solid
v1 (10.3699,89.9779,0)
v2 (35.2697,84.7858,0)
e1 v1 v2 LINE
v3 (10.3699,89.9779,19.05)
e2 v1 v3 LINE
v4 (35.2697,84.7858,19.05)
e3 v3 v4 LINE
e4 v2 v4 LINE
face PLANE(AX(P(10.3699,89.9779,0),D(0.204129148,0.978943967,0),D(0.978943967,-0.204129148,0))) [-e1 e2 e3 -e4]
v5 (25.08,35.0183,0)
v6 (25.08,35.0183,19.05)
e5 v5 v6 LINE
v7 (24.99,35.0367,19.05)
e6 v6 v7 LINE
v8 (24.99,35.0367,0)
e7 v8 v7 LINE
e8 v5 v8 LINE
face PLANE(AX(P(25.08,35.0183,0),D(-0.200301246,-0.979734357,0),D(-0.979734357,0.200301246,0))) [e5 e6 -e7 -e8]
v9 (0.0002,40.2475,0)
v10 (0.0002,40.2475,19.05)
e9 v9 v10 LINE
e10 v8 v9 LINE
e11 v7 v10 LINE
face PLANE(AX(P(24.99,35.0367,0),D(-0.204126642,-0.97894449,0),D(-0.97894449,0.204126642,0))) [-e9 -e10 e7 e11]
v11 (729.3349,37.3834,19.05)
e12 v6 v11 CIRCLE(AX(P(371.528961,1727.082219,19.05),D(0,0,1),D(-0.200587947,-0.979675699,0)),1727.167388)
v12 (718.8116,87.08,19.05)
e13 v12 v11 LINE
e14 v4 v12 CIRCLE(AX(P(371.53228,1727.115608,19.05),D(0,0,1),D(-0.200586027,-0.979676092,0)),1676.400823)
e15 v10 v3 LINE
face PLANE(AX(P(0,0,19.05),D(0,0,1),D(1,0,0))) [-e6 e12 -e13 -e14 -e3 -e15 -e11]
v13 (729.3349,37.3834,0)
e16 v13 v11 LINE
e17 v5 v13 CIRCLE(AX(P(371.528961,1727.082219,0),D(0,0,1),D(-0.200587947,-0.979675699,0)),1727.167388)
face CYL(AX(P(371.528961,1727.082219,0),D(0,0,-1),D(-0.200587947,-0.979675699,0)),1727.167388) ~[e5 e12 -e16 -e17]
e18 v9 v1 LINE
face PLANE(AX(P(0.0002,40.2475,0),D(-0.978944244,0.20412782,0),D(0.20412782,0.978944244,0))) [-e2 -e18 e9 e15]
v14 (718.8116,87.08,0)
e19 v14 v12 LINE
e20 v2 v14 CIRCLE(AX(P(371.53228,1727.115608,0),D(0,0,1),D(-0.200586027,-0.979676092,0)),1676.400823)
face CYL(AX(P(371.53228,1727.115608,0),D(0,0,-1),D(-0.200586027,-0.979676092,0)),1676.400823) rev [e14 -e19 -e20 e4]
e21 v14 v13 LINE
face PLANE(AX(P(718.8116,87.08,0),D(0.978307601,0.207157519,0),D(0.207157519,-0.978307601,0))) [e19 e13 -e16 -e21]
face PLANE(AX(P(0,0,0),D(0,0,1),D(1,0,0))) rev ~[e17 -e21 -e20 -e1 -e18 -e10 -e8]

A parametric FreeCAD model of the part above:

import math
import FreeCAD as App
import Part
import Sketcher
from FreeCAD import Vector
Q = App.Units.Quantity

doc = App.newDocument("Part")
body = doc.addObject("PartDesign::Body", "Body")

# Sketch on XY plane
sketch1 = doc.addObject("Sketcher::SketchObject", "Sketch")
body.addObject(sketch1)
sketch1.AttachmentSupport = (doc.XY_Plane, [""])
sketch1.MapMode = "FlatFace"
sketch1.addGeometry([
    Part.LineSegment(Vector(35.27, 84.79, 0), Vector(10.37, 89.98, 0)),  # 0
    Part.LineSegment(Vector(10.37, 89.98, 0), Vector(0, 40.25, 0)),  # 1
    Part.LineSegment(Vector(0, 40.25, 0), Vector(24.99, 35.04, 0)),  # 2
    Part.LineSegment(Vector(24.99, 35.04, 0), Vector(25.08, 35.02, 0)),  # 3
    Part.ArcOfCircle(Part.Circle(Vector(371.53, 1727.08, 0), Vector(0, 0, 1), 1727.17), math.radians(-102), math.radians(-78)),  # 4
    Part.LineSegment(Vector(729.33, 37.38, 0), Vector(718.81, 87.08, 0)),  # 5
    Part.ArcOfCircle(Part.Circle(Vector(371.53, 1727.11, 0), Vector(0, 0, 1), 1676.4), math.radians(-102), math.radians(-78)),  # 6
], False)
sketch1.addConstraint([
    Sketcher.Constraint("Coincident", 0, 2, 1, 1),
    Sketcher.Constraint("Coincident", 1, 2, 2, 1),
    Sketcher.Constraint("Coincident", 2, 2, 3, 1),
    Sketcher.Constraint("Tangent", 3, 2, 4, 1),
    Sketcher.Constraint("Coincident", 4, 2, 5, 1),
    Sketcher.Constraint("Coincident", 5, 2, 6, 2),
    Sketcher.Constraint("Coincident", 6, 1, 0, 1),
    Sketcher.Constraint("Perpendicular", 0, 1),
    Sketcher.Constraint("Perpendicular", 1, 2),
    Sketcher.Constraint("Radius", 6, Q("66 in")),
    Sketcher.Constraint("Distance", 1, Q("2 in")),
    Sketcher.Constraint("DistanceX", -1, 1, 1, 2, Q("0 in")),
    Sketcher.Constraint("Radius", 4, Q("1727.1674 mm")),
    Sketcher.Constraint("Distance", 2, Q("1.005 in")),
    Sketcher.Constraint("DistanceX", 0, 2, 6, 3, Q("14.219 in")),
    Sketcher.Constraint("Distance", 0, Q("1.0014 in")),
    Sketcher.Constraint("DistanceY", -1, 1, 2, 2, Q("1.3794 in")),
    Sketcher.Constraint("DistanceX", -1, 1, 3, 2, Q("0.9874 in")),
    Sketcher.Constraint("DistanceY", 0, 2, 6, 3, Q("64.4542 in")),
    Sketcher.Constraint("DistanceY", 3, 2, 4, 3, Q("66.6167 in")),
    Sketcher.Constraint("DistanceX", 2, 2, 5, 2, Q("27.3158 in")),
    Sketcher.Constraint("Angle", 5, Q("101.9558 deg")),
])
pad1 = doc.addObject("PartDesign::Pad", "Pad")
body.addObject(pad1)
pad1.Profile = sketch1
pad1.Length = Q("0.75 in")

doc.recompute()
